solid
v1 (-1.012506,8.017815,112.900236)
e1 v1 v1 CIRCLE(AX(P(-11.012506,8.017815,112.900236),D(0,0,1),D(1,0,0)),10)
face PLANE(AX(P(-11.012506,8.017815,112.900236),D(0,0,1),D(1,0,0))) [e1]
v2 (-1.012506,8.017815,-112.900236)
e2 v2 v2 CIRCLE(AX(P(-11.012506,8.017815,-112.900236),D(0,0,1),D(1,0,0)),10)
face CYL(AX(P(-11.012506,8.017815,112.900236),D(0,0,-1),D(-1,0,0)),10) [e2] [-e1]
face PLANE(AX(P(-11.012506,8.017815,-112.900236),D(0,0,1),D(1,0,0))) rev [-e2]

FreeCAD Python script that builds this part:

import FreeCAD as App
import Part
import Sketcher

V = App.Vector

doc = App.newDocument("Part")
body = doc.addObject("PartDesign::Body", "Body")

sketch1 = doc.addObject("Sketcher::SketchObject", "Sketch")
body.addObject(sketch1)
sketch1.AttachmentSupport = (doc.XY_Plane, [""])
sketch1.MapMode = "FlatFace"
sketch1.addGeometry(Part.Circle(V(-11.012506, 8.017815, 0), V(0, 0, 1), 10), False)
sketch1.addConstraint(Sketcher.Constraint("Diameter", 0, 20.0))
sketch1.addConstraint(Sketcher.Constraint("DistanceX", 0, 3, -1, 1, 11.012506))
sketch1.addConstraint(Sketcher.Constraint("DistanceY", -1, 1, 0, 3, 8.017815))
pad1 = doc.addObject("PartDesign::Pad", "Pad")
body.addObject(pad1)
pad1.Profile = sketch1
pad1.Length = 225.800472
pad1.Midplane = True

doc.recompute()
